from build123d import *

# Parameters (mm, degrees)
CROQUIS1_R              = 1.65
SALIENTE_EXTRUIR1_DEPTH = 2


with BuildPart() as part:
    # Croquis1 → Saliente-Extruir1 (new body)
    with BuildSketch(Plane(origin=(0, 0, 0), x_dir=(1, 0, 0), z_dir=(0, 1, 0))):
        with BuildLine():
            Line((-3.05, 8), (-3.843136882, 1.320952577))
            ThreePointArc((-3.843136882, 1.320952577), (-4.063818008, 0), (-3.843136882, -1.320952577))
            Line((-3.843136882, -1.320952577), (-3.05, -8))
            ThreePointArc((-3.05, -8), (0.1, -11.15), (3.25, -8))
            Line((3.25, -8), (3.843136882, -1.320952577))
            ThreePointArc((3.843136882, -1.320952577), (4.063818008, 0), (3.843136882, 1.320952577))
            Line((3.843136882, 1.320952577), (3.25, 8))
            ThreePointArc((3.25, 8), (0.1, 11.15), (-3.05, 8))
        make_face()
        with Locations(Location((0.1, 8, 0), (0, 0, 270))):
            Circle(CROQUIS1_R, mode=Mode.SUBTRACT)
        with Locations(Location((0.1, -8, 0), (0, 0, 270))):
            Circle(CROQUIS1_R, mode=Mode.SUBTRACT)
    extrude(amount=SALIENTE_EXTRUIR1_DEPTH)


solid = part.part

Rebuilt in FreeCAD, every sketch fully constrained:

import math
import FreeCAD as App
import Part
import Sketcher
Q = App.Units.Quantity

doc = App.newDocument("Part")
body = doc.addObject("PartDesign::Body", "Body")

sketch1 = body.newObject("Sketcher::SketchObject", "Sketch")
sketch1.AttachmentSupport = (doc.getObject("XZ_Plane"), [""])
sketch1.MapMode = "FlatFace"
sketch1.addGeometry([
    Part.LineSegment(App.Vector(-3, -8, 0), App.Vector(-3.8, -1.3, 0)),
    Part.ArcOfCircle(Part.Circle(App.Vector(0, 0, 0), App.Vector(0, 0, 1), 4.1), math.radians(161), math.radians(199)),
    Part.LineSegment(App.Vector(-3.8, 1.3, 0), App.Vector(-3, 8, 0)),
    Part.ArcOfCircle(Part.Circle(App.Vector(0.1, 8, 0), App.Vector(0, 0, 1), 3.1), math.radians(0), math.radians(180)),
    Part.LineSegment(App.Vector(3.2, 8, 0), App.Vector(3.8, 1.3, 0)),
    Part.ArcOfCircle(Part.Circle(App.Vector(0, 0, 0), App.Vector(0, 0, 1), 4.1), math.radians(-19), math.radians(19)),
    Part.LineSegment(App.Vector(3.8, -1.3, 0), App.Vector(3.2, -8, 0)),
    Part.ArcOfCircle(Part.Circle(App.Vector(0.1, -8, 0), App.Vector(0, 0, 1), 3.1), math.radians(180), math.radians(360)),
    Part.Circle(App.Vector(0.1, 8, 0), App.Vector(0, 0, 1), 1.6),
    Part.Circle(App.Vector(0.1, -8, 0), App.Vector(0, 0, 1), 1.6),
], False)
sketch1.addConstraint([
    Sketcher.Constraint("Coincident", 0, 2, 1, 2),
    Sketcher.Constraint("Coincident", 1, 1, 2, 1),
    Sketcher.Constraint("Coincident", 2, 2, 3, 2),
    Sketcher.Constraint("Coincident", 3, 1, 4, 1),
    Sketcher.Constraint("Coincident", 4, 2, 5, 2),
    Sketcher.Constraint("Coincident", 5, 1, 6, 1),
    Sketcher.Constraint("Coincident", 6, 2, 7, 2),
    Sketcher.Constraint("Coincident", 7, 1, 0, 1),
    Sketcher.Constraint("Coincident", 1, 3, -1, 1),
    Sketcher.Constraint("Coincident", 5, 3, -1, 1),
    Sketcher.Constraint("Coincident", 8, 3, 3, 3),
    Sketcher.Constraint("Coincident", 9, 3, 7, 3),
    Sketcher.Constraint("Equal", 1, 5),
    Sketcher.Constraint("Equal", 3, 7),
    Sketcher.Constraint("Equal", 8, 9),
    Sketcher.Constraint("Symmetric", 3, 3, 7, 3, -1),
    Sketcher.Constraint("Horizontal", 8, 3, 2, 2),
    Sketcher.Constraint("Horizontal", 2, 2, 3, 1),
    Sketcher.Constraint("Horizontal", 1, 1, 4, 2),
    Sketcher.Constraint("Horizontal", 0, 2, 5, 1),
    Sketcher.Constraint("Horizontal", 9, 3, 6, 2),
    Sketcher.Constraint("Horizontal", 6, 2, 7, 1),
    Sketcher.Constraint("Vertical", 0, 2, 1, 1),
    Sketcher.Constraint("Diameter", 8, Q("3.3 mm")),
    Sketcher.Constraint("Radius", 3, Q("3.15 mm")),
    Sketcher.Constraint("DistanceY", -1, 1, 3, 3, Q("8 mm")),
    Sketcher.Constraint("DistanceX", -1, 1, 3, 3, Q("0.1 mm")),
    Sketcher.Constraint("Radius", 1, Q("4.063818 mm")),
    Sketcher.Constraint("Distance", 0, Q("6.725975 mm")),
])
pad1 = body.newObject("PartDesign::Pad", "Pad")
pad1.Profile = sketch1
pad1.Length = 2
pad1.Reversed = True

doc.recompute()
